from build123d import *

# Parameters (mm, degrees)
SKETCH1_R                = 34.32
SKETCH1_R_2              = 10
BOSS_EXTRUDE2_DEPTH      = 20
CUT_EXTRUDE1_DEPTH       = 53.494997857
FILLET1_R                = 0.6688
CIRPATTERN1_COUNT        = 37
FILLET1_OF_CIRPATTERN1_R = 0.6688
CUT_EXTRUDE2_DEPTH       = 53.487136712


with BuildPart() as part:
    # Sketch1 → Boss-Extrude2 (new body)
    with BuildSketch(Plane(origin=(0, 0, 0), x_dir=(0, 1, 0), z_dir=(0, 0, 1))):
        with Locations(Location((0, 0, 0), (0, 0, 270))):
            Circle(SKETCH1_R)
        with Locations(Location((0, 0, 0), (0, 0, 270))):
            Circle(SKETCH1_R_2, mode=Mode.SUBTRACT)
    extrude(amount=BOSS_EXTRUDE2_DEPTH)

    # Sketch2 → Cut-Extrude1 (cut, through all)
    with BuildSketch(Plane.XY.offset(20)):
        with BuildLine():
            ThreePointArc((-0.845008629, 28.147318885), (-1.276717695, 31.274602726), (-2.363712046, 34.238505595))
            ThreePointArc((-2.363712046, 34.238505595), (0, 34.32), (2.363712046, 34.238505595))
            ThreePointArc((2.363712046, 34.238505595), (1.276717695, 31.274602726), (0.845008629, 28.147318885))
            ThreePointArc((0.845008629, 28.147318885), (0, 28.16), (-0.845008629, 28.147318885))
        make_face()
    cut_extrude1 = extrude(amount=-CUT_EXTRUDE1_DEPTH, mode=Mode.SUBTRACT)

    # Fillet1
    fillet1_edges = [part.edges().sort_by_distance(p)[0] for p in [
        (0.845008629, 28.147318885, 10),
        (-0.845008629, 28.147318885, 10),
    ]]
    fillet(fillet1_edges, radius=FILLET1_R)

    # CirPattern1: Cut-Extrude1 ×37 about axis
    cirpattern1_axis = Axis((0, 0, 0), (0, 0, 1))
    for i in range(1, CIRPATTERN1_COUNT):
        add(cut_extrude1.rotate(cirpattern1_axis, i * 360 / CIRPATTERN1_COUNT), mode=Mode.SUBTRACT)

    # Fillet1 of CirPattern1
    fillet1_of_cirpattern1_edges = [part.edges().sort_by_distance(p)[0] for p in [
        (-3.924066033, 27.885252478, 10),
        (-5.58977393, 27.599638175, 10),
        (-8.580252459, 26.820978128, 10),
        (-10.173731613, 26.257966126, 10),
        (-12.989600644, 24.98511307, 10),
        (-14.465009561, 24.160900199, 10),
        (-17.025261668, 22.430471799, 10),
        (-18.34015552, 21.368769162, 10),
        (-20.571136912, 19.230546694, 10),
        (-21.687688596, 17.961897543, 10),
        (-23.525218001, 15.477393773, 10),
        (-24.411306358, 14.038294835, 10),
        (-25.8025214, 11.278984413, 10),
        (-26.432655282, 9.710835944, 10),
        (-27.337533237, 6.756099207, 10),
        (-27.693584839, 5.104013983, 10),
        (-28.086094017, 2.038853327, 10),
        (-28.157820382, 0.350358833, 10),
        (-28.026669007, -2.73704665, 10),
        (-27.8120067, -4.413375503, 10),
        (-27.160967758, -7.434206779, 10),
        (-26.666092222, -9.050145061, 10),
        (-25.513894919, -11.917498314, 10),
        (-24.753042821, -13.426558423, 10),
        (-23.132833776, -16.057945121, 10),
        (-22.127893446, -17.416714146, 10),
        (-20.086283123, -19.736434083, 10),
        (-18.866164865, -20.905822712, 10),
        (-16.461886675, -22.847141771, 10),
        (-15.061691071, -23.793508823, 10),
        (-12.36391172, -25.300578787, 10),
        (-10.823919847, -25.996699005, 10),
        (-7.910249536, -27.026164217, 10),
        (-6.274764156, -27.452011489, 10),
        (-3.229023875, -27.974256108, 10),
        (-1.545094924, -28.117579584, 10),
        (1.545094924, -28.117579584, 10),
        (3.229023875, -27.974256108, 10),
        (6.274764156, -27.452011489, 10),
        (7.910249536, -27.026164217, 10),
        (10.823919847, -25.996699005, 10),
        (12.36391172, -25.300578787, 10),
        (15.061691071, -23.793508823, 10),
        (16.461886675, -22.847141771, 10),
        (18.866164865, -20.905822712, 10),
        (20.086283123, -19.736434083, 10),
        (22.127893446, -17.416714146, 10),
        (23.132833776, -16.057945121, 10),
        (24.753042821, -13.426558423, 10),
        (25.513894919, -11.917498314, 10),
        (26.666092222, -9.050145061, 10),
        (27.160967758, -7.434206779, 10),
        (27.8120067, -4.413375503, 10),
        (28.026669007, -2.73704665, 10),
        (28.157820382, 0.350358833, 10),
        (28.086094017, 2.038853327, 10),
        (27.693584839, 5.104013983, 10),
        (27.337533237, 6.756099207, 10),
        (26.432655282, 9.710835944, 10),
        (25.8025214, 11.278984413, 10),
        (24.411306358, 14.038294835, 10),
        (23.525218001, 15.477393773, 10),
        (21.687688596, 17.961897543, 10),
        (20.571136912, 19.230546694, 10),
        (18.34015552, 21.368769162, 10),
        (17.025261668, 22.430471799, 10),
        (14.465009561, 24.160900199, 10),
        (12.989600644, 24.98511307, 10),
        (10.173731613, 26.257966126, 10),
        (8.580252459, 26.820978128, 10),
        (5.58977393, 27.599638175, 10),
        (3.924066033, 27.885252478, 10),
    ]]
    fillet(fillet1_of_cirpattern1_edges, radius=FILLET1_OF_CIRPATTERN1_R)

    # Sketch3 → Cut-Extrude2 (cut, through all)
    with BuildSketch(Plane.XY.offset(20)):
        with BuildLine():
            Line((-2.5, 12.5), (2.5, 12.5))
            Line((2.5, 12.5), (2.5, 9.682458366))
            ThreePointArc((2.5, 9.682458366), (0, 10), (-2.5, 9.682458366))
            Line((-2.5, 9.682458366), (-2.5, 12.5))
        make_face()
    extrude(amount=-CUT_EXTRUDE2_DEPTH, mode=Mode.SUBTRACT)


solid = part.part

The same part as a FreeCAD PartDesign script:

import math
import FreeCAD as App
import Part
import Sketcher
from FreeCAD import Vector
Q = App.Units.Quantity


def edges_at(feature, points):
    """Names of the edges that pass closest to the given points."""
    edges = feature.Shape.Edges
    near = lambda p: min(range(len(edges)), key=lambda i: edges[i].distToShape(Part.Vertex(*p))[0])
    return sorted({f"Edge{near(p) + 1}" for p in points})

doc = App.newDocument("Part")
body = doc.addObject("PartDesign::Body", "Body")

sketch1 = body.newObject("Sketcher::SketchObject", "Sketch")
sketch1.AttachmentSupport = (doc.getObject("XY_Plane"), [""])
sketch1.MapMode = "FlatFace"
sketch1.addGeometry(Part.Circle(Vector(0, 0, 0), Vector(0, 0, 1), 34.32), False)
sketch1.addGeometry(Part.Circle(Vector(0, 0, 0), Vector(0, 0, 1), 10), False)
sketch1.addConstraint(Sketcher.Constraint("Coincident", 0, 3, -1, 1))
sketch1.addConstraint(Sketcher.Constraint("Coincident", 1, 3, -1, 1))
sketch1.addConstraint(Sketcher.Constraint("Diameter", 1, Q("20 mm")))
sketch1.addConstraint(Sketcher.Constraint("Diameter", 0, Q("68.64 mm")))
pad1 = body.newObject("PartDesign::Pad", "Pad")
pad1.Profile = sketch1
pad1.Length = 20

sketch2 = body.newObject("Sketcher::SketchObject", "Sketch001")
sketch2.AttachmentSupport = (doc.getObject("XY_Plane"), [""])
sketch2.MapMode = "FlatFace"
sketch2.AttachmentOffset = App.Placement(Vector(0, 0, 20), App.Rotation())
sketch2.addGeometry(Part.ArcOfCircle(Part.Circle(Vector(-15.595654, 27.704491, 0), Vector(0, 0, 1), 14.757291), math.radians(1.719556), math.radians(26.280444)), False)
sketch2.addGeometry(Part.ArcOfCircle(Part.Circle(Vector(0, 0, 0), Vector(0, 0, 1), 28.16), math.radians(88.280444), math.radians(91.719556)), False)
sketch2.addGeometry(Part.ArcOfCircle(Part.Circle(Vector(15.595654, 27.704491, 0), Vector(0, 0, 1), 14.757291), math.radians(153.719556), math.radians(178.280444)), False)
sketch2.addGeometry(Part.ArcOfCircle(Part.Circle(Vector(0, 0, 0), Vector(0, 0, 1), 34.32), math.radians(86.050757), math.radians(93.949243)), False)
sketch2.addConstraint(Sketcher.Constraint("Coincident", 0, 1, 1, 2))
sketch2.addConstraint(Sketcher.Constraint("Coincident", 1, 1, 2, 2))
sketch2.addConstraint(Sketcher.Constraint("Coincident", 2, 1, 3, 1))
sketch2.addConstraint(Sketcher.Constraint("Coincident", 3, 2, 0, 2))
sketch2.addConstraint(Sketcher.Constraint("Coincident", 1, 3, -1, 1))
sketch2.addConstraint(Sketcher.Constraint("Coincident", 3, 3, -1, 1))
sketch2.addConstraint(Sketcher.Constraint("Equal", 0, 2))
sketch2.addConstraint(Sketcher.Constraint("Symmetric", 0, 3, 2, 3, -2))
sketch2.addConstraint(Sketcher.Constraint("Radius", 1, Q("28.16 mm")))
sketch2.addConstraint(Sketcher.Constraint("Radius", 3, Q("34.32 mm")))
sketch2.addConstraint(Sketcher.Constraint("Radius", 0, Q("14.757291 mm")))
sketch2.addConstraint(Sketcher.Constraint("DistanceY", -1, 1, 0, 3, Q("27.704491 mm")))
sketch2.addConstraint(Sketcher.Constraint("DistanceX", 0, 1, -1, 1, Q("0.845009 mm")))
pocket1 = body.newObject("PartDesign::Pocket", "Pocket")
pocket1.Profile = sketch2
pocket1.Type = "ThroughAll"
doc.recompute()

fillet = body.newObject("PartDesign::Fillet", "Fillet")
fillet.Base = (pocket1, edges_at(pocket1, [(0.845, 28.147, 10), (-0.845, 28.147, 10)]))
fillet.Radius = 0.6688
doc.recompute()

polarpattern = body.newObject("PartDesign::PolarPattern", "PolarPattern")
polarpattern.Originals = [pocket1]
polarpattern.Axis = (doc.getObject("Z_Axis"), [""])
polarpattern.Angle = 360
polarpattern.Occurrences = 37
body.Tip = polarpattern
doc.recompute()

fillet2 = body.newObject("PartDesign::Fillet", "Fillet001")
fillet2.Base = (polarpattern, edges_at(polarpattern, [
    (-3.924, 27.885, 10),
    (-5.59, 27.6, 10),
    (-8.58, 26.821, 10),
    (-10.174, 26.258, 10),
    (-12.99, 24.985, 10),
    (-14.465, 24.161, 10),
    (-17.025, 22.43, 10),
    (-18.34, 21.369, 10),
    (-20.571, 19.231, 10),
    (-21.688, 17.962, 10),
    (-23.525, 15.477, 10),
    (-24.411, 14.038, 10),
    (-25.803, 11.279, 10),
    (-26.433, 9.711, 10),
    (-27.338, 6.756, 10),
    (-27.694, 5.104, 10),
    (-28.086, 2.039, 10),
    (-28.158, 0.35, 10),
    (-28.027, -2.737, 10),
    (-27.812, -4.413, 10),
    (-27.161, -7.434, 10),
    (-26.666, -9.05, 10),
    (-25.514, -11.917, 10),
    (-24.753, -13.427, 10),
    (-23.133, -16.058, 10),
    (-22.128, -17.417, 10),
    (-20.086, -19.736, 10),
    (-18.866, -20.906, 10),
    (-16.462, -22.847, 10),
    (-15.062, -23.794, 10),
    (-12.364, -25.301, 10),
    (-10.824, -25.997, 10),
    (-7.91, -27.026, 10),
    (-6.275, -27.452, 10),
    (-3.229, -27.974, 10),
    (-1.545, -28.118, 10),
    (1.545, -28.118, 10),
    (3.229, -27.974, 10),
    (6.275, -27.452, 10),
    (7.91, -27.026, 10),
    (10.824, -25.997, 10),
    (12.364, -25.301, 10),
    (15.062, -23.794, 10),
    (16.462, -22.847, 10),
    (18.866, -20.906, 10),
    (20.086, -19.736, 10),
    (22.128, -17.417, 10),
    (23.133, -16.058, 10),
    (24.753, -13.427, 10),
    (25.514, -11.917, 10),
    (26.666, -9.05, 10),
    (27.161, -7.434, 10),
    (27.812, -4.413, 10),
    (28.027, -2.737, 10),
    (28.158, 0.35, 10),
    (28.086, 2.039, 10),
    (27.694, 5.104, 10),
    (27.338, 6.756, 10),
    (26.433, 9.711, 10),
    (25.803, 11.279, 10),
    (24.411, 14.038, 10),
    (23.525, 15.477, 10),
    (21.688, 17.962, 10),
    (20.571, 19.231, 10),
    (18.34, 21.369, 10),
    (17.025, 22.43, 10),
    (14.465, 24.161, 10),
    (12.99, 24.985, 10),
    (10.174, 26.258, 10),
    (8.58, 26.821, 10),
    (5.59, 27.6, 10),
    (3.924, 27.885, 10),
]))
fillet2.Radius = 0.6688

sketch3 = body.newObject("Sketcher::SketchObject", "Sketch002")
sketch3.AttachmentSupport = (doc.getObject("XY_Plane"), [""])
sketch3.MapMode = "FlatFace"
sketch3.AttachmentOffset = App.Placement(Vector(0, 0, 20), App.Rotation())
sketch3.addGeometry(Part.LineSegment(Vector(2.5, 12.5, 0), Vector(-2.5, 12.5, 0)), False)
sketch3.addGeometry(Part.LineSegment(Vector(-2.5, 12.5, 0), Vector(-2.5, 9.682458, 0)), False)
sketch3.addGeometry(Part.ArcOfCircle(Part.Circle(Vector(0, 0, 0), Vector(0, 0, 1), 10), math.radians(75.522488), math.radians(104.477512)), False)
sketch3.addGeometry(Part.LineSegment(Vector(2.5, 9.682458, 0), Vector(2.5, 12.5, 0)), False)
sketch3.addConstraint(Sketcher.Constraint("Coincident", 0, 2, 1, 1))
sketch3.addConstraint(Sketcher.Constraint("Coincident", 1, 2, 2, 2))
sketch3.addConstraint(Sketcher.Constraint("Coincident", 2, 1, 3, 1))
sketch3.addConstraint(Sketcher.Constraint("Coincident", 3, 2, 0, 1))
sketch3.addConstraint(Sketcher.Constraint("Horizontal", 0))
sketch3.addConstraint(Sketcher.Constraint("Vertical", 1))
sketch3.addConstraint(Sketcher.Constraint("Vertical", 3))
sketch3.addConstraint(Sketcher.Constraint("Coincident", 2, 3, -1, 1))
sketch3.addConstraint(Sketcher.Constraint("Horizontal", 1, 2, 2, 1))
sketch3.addConstraint(Sketcher.Constraint("Radius", 2, Q("10 mm")))
sketch3.addConstraint(Sketcher.Constraint("DistanceX", 0, 2, 0, 1, Q("5 mm")))
sketch3.addConstraint(Sketcher.Constraint("DistanceY", -1, 1, 0, 2, Q("12.5 mm")))
pocket2 = body.newObject("PartDesign::Pocket", "Pocket001")
pocket2.Profile = sketch3
pocket2.Type = "ThroughAll"

doc.recompute()
